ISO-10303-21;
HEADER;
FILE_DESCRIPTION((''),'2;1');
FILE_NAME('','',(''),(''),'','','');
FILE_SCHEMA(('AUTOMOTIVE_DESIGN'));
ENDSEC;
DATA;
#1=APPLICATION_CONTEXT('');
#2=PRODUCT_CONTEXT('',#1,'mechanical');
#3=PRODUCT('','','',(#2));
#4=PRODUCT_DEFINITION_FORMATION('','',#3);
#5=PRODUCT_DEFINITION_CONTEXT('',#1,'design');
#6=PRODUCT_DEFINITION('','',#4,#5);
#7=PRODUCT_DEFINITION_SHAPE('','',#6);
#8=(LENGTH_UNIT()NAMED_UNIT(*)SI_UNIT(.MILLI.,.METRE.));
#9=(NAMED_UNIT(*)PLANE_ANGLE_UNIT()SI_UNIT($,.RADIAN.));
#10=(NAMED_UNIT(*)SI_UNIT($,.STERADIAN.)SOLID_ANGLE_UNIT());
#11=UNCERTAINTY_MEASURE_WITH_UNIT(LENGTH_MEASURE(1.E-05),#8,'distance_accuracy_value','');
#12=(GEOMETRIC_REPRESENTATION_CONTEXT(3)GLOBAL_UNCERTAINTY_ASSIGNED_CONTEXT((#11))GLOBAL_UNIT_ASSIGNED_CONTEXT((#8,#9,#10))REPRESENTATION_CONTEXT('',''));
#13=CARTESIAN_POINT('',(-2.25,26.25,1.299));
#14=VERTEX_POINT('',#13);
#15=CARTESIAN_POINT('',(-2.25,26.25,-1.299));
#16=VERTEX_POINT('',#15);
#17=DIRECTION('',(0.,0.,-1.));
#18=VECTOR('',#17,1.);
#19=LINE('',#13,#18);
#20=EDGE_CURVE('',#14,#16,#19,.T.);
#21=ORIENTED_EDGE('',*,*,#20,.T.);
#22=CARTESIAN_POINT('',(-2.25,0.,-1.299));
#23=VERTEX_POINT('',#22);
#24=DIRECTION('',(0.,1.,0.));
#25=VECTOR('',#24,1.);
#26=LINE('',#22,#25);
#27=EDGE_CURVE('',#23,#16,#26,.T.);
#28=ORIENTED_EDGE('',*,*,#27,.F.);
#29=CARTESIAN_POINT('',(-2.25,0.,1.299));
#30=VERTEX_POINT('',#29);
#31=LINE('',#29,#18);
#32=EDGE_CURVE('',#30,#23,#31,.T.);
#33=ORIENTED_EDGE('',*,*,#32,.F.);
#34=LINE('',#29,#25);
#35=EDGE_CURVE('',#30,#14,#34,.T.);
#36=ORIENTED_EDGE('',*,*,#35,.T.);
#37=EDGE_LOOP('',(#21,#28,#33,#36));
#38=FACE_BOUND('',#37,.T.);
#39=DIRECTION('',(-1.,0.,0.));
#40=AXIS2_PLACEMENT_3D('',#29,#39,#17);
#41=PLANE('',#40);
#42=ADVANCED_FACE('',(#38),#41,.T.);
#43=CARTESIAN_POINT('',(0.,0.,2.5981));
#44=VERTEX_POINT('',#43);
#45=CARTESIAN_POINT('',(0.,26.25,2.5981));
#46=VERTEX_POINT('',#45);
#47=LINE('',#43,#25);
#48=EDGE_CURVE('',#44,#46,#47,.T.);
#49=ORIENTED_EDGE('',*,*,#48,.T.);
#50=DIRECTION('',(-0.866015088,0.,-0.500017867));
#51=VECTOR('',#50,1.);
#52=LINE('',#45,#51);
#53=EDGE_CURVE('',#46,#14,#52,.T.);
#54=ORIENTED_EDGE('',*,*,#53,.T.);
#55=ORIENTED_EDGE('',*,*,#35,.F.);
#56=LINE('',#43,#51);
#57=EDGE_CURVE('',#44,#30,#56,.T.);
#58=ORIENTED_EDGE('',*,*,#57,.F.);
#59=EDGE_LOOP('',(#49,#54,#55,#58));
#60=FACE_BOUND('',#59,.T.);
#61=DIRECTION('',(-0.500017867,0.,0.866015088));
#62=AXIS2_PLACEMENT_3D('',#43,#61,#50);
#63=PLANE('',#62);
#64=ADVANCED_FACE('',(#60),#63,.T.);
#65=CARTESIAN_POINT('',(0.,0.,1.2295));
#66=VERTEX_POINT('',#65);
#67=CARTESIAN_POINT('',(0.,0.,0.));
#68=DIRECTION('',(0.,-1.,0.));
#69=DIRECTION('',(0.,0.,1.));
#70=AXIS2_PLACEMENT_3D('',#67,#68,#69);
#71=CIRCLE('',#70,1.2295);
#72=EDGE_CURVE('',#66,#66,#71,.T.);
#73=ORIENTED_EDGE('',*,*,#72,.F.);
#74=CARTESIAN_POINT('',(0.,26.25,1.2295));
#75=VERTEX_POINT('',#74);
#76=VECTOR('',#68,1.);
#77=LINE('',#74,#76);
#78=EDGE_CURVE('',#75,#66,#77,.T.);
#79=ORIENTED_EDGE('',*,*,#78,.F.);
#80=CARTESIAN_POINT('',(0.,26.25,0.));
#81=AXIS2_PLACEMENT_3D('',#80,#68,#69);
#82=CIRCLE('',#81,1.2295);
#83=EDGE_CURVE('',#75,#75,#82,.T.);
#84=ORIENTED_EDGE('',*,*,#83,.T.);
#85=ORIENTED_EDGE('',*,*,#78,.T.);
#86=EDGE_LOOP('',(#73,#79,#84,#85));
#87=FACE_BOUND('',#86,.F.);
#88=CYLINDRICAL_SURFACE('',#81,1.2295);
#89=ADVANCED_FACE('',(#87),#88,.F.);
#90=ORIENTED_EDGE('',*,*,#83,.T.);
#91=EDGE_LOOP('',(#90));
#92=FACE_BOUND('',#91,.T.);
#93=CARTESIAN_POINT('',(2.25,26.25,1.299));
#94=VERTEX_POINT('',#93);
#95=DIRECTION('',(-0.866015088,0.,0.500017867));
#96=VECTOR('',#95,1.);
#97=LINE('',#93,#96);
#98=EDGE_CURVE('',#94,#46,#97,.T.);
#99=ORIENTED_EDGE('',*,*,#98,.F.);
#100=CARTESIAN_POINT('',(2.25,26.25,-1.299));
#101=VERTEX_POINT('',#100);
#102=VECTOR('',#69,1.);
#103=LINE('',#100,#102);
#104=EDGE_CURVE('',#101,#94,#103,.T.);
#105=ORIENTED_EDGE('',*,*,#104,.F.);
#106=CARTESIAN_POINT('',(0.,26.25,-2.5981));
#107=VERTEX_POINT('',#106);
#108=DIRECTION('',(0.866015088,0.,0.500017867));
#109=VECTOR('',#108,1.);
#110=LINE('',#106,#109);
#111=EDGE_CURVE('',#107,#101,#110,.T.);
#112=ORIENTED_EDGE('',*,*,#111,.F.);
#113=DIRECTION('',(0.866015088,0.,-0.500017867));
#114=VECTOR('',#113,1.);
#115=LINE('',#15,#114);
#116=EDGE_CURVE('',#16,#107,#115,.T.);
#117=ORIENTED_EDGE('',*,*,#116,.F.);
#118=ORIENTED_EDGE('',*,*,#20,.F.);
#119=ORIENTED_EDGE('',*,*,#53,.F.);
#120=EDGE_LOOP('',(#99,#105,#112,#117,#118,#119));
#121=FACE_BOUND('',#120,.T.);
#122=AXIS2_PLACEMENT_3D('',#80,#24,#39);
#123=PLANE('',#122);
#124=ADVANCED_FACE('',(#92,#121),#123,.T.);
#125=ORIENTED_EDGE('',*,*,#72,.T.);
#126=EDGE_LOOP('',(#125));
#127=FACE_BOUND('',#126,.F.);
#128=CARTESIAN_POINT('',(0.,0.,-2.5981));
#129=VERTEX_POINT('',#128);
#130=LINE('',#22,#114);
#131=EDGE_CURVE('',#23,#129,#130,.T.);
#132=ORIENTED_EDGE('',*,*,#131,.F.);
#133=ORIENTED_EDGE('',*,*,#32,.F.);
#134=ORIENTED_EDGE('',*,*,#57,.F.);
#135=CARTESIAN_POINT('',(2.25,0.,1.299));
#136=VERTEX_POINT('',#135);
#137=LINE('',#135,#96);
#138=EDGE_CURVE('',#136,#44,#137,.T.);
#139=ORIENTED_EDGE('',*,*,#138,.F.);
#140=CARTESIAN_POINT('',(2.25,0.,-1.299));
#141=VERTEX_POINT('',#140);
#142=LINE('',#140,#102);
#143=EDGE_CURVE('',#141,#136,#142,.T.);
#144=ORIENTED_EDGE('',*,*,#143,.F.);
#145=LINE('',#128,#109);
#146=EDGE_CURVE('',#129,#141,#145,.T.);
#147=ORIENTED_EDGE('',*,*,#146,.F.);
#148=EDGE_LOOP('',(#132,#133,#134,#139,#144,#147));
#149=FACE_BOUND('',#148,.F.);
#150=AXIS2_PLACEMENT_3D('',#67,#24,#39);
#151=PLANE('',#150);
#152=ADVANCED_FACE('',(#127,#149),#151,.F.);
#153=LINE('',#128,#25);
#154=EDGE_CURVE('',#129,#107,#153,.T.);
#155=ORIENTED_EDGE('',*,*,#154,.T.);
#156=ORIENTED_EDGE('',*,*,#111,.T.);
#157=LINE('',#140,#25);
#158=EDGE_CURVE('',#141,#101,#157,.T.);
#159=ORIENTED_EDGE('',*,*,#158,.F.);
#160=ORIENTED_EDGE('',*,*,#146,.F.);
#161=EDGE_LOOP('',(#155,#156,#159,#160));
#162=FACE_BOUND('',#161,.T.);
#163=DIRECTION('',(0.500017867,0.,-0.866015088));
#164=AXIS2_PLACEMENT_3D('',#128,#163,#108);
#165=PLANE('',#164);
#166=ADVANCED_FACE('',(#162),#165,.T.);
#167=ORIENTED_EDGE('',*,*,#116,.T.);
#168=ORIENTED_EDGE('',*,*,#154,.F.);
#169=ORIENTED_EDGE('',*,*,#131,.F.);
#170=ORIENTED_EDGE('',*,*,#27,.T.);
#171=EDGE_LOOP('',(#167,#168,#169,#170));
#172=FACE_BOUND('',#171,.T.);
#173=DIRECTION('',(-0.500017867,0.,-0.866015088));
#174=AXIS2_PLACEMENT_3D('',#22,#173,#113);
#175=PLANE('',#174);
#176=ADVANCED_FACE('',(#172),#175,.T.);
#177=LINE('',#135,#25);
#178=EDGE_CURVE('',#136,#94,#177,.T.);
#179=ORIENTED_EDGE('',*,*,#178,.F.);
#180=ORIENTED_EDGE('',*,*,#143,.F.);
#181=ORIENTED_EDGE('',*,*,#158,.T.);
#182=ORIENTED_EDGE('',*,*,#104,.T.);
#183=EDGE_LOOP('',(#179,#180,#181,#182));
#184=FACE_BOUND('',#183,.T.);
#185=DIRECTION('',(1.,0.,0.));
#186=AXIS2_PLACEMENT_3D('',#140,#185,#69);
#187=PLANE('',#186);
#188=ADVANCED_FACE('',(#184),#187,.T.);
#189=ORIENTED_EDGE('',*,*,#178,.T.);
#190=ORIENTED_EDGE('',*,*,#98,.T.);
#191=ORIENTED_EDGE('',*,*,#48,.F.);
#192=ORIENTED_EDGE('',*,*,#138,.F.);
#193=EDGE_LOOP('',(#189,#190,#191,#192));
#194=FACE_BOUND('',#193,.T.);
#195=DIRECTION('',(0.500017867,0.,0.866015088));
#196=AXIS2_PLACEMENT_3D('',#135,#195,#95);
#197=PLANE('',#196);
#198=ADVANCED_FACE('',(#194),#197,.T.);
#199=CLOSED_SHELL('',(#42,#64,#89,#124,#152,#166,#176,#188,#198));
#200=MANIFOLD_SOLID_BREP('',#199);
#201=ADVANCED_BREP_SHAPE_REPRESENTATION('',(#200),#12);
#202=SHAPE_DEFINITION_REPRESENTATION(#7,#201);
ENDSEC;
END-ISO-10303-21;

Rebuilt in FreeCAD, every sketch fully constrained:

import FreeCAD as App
import Part
import Sketcher
from FreeCAD import Vector
Q = App.Units.Quantity

doc = App.newDocument("Part")
body = doc.addObject("PartDesign::Body", "Body")

# Sketch on XZ plane
sketch1 = body.newObject("Sketcher::SketchObject", "Sketch")
sketch1.AttachmentSupport = (doc.getObject("XZ_Plane"), [""])
sketch1.MapMode = "FlatFace"
sketch1.addGeometry(Part.LineSegment(Vector(2.2, 1.3, 0), Vector(2.2, -1.3, 0)), False)
sketch1.addGeometry(Part.LineSegment(Vector(2.2, -1.3, 0), Vector(0, -2.6, 0)), False)
sketch1.addGeometry(Part.LineSegment(Vector(0, -2.6, 0), Vector(-2.2, -1.3, 0)), False)
sketch1.addGeometry(Part.LineSegment(Vector(-2.2, -1.3, 0), Vector(-2.2, 1.3, 0)), False)
sketch1.addGeometry(Part.LineSegment(Vector(-2.2, 1.3, 0), Vector(0, 2.6, 0)), False)
sketch1.addGeometry(Part.LineSegment(Vector(0, 2.6, 0), Vector(2.2, 1.3, 0)), False)
sketch1.addConstraint(Sketcher.Constraint("Coincident", 0, 2, 1, 1))
sketch1.addConstraint(Sketcher.Constraint("Coincident", 1, 2, 2, 1))
sketch1.addConstraint(Sketcher.Constraint("Coincident", 2, 2, 3, 1))
sketch1.addConstraint(Sketcher.Constraint("Coincident", 3, 2, 4, 1))
sketch1.addConstraint(Sketcher.Constraint("Coincident", 4, 2, 5, 1))
sketch1.addConstraint(Sketcher.Constraint("Coincident", 5, 2, 0, 1))
sketch1.addConstraint(Sketcher.Constraint("Vertical", 0))
sketch1.addConstraint(Sketcher.Constraint("Vertical", 3))
sketch1.addConstraint(Sketcher.Constraint("Symmetric", 0, 2, 3, 2, -1, 1))
sketch1.addConstraint(Sketcher.Constraint("Symmetric", 1, 2, 4, 2, -1, 1))
sketch1.addConstraint(Sketcher.Constraint("PointOnObject", 1, 2, -2))
sketch1.addConstraint(Sketcher.Constraint("Parallel", 2, 5))
sketch1.addConstraint(Sketcher.Constraint("Horizontal", 0, 2, 2, 2))
sketch1.addConstraint(Sketcher.Constraint("DistanceX", 2, 2, 0, 2, Q("4.5 mm")))
sketch1.addConstraint(Sketcher.Constraint("Angle", 1, Q("-149.9988 deg")))
sketch1.addConstraint(Sketcher.Constraint("DistanceY", 0, 2, 0, 1, Q("2.598 mm")))
pad1 = body.newObject("PartDesign::Pad", "Pad")
pad1.Profile = sketch1
pad1.Length = 26.25
pad1.Reversed = True

# Sketch on XZ plane
sketch2 = body.newObject("Sketcher::SketchObject", "Sketch001")
sketch2.AttachmentSupport = (doc.getObject("XZ_Plane"), [""])
sketch2.MapMode = "FlatFace"
sketch2.AttachmentOffset = App.Placement(Vector(0, 0, -26.25), App.Rotation())
sketch2.addGeometry(Part.Circle(Vector(0, 0, 0), Vector(0, 0, 1), 1.2), False)
sketch2.addConstraint(Sketcher.Constraint("Coincident", 0, 3, -1, 1))
sketch2.addConstraint(Sketcher.Constraint("Diameter", 0, Q("2.459 mm")))
doc.recompute()
hole = body.newObject("PartDesign::Hole", "Hole")
hole.Profile = sketch2
hole.ThreadType = "None"
hole.Diameter = 2.459
hole.DepthType = "ThroughAll"
hole.Reversed = True

doc.recompute()
